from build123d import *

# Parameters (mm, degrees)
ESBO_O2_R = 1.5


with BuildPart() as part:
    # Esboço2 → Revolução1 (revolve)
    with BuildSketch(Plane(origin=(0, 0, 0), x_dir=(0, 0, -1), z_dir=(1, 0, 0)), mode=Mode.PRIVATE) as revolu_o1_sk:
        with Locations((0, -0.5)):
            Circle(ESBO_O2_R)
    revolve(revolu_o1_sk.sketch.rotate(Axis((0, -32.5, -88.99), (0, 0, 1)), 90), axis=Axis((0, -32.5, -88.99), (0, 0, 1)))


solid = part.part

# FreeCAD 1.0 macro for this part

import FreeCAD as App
import Part
import Sketcher

V = App.Vector
Q = App.Units.Quantity

doc = App.newDocument("Part")
params = doc.addObject("Spreadsheet::Sheet", "Params")
for row, (alias, value) in enumerate([
    ("sketch1_diameter", "3 mm"),
    ("sketch1_height", "10 mm"),
    ("revolution_angle", "360 deg"),
], start=1):
    params.set(f"A{row}", alias)
    params.set(f"B{row}", "=" + value)
    params.setAlias(f"B{row}", alias)

body = doc.addObject("PartDesign::Body", "Body")

sketch1 = body.newObject("Sketcher::SketchObject", "Sketch")
sketch1.AttachmentSupport = (doc.getObject("YZ_Plane"), [""])
sketch1.MapMode = "FlatFace"
sketch1.addGeometry(Part.Circle(V(-0.5, 0, 0), V(0, 0, 1), 1.5), False)
sketch1.addGeometry(Part.LineSegment(V(-32.5, 0, 0), V(-32.5, 10, 0)), True)
sketch1.addConstraint([
    Sketcher.Constraint("Vertical", 1),
    Sketcher.Constraint("PointOnObject", 0, 3, -1),
    Sketcher.Constraint("PointOnObject", 1, 1, -1),
    Sketcher.Constraint("Diameter", 0, Q("3 mm")),
    Sketcher.Constraint("DistanceY", 1, 1, 1, 2, Q("10 mm")),
    Sketcher.Constraint("DistanceX", 1, 1, 0, 3, Q("32 mm")),
    Sketcher.Constraint("DistanceX", 0, 3, -1, 1, Q("0.5 mm")),
])
sketch1.setExpression("Constraints[3]", "Params.sketch1_diameter")
sketch1.setExpression("Constraints[4]", "Params.sketch1_height")
revolution = body.newObject("PartDesign::Revolution", "Revolution")
revolution.Profile = sketch1
revolution.ReferenceAxis = (sketch1, ["Axis0"])
revolution.setExpression("Angle", "Params.revolution_angle")

doc.recompute()
